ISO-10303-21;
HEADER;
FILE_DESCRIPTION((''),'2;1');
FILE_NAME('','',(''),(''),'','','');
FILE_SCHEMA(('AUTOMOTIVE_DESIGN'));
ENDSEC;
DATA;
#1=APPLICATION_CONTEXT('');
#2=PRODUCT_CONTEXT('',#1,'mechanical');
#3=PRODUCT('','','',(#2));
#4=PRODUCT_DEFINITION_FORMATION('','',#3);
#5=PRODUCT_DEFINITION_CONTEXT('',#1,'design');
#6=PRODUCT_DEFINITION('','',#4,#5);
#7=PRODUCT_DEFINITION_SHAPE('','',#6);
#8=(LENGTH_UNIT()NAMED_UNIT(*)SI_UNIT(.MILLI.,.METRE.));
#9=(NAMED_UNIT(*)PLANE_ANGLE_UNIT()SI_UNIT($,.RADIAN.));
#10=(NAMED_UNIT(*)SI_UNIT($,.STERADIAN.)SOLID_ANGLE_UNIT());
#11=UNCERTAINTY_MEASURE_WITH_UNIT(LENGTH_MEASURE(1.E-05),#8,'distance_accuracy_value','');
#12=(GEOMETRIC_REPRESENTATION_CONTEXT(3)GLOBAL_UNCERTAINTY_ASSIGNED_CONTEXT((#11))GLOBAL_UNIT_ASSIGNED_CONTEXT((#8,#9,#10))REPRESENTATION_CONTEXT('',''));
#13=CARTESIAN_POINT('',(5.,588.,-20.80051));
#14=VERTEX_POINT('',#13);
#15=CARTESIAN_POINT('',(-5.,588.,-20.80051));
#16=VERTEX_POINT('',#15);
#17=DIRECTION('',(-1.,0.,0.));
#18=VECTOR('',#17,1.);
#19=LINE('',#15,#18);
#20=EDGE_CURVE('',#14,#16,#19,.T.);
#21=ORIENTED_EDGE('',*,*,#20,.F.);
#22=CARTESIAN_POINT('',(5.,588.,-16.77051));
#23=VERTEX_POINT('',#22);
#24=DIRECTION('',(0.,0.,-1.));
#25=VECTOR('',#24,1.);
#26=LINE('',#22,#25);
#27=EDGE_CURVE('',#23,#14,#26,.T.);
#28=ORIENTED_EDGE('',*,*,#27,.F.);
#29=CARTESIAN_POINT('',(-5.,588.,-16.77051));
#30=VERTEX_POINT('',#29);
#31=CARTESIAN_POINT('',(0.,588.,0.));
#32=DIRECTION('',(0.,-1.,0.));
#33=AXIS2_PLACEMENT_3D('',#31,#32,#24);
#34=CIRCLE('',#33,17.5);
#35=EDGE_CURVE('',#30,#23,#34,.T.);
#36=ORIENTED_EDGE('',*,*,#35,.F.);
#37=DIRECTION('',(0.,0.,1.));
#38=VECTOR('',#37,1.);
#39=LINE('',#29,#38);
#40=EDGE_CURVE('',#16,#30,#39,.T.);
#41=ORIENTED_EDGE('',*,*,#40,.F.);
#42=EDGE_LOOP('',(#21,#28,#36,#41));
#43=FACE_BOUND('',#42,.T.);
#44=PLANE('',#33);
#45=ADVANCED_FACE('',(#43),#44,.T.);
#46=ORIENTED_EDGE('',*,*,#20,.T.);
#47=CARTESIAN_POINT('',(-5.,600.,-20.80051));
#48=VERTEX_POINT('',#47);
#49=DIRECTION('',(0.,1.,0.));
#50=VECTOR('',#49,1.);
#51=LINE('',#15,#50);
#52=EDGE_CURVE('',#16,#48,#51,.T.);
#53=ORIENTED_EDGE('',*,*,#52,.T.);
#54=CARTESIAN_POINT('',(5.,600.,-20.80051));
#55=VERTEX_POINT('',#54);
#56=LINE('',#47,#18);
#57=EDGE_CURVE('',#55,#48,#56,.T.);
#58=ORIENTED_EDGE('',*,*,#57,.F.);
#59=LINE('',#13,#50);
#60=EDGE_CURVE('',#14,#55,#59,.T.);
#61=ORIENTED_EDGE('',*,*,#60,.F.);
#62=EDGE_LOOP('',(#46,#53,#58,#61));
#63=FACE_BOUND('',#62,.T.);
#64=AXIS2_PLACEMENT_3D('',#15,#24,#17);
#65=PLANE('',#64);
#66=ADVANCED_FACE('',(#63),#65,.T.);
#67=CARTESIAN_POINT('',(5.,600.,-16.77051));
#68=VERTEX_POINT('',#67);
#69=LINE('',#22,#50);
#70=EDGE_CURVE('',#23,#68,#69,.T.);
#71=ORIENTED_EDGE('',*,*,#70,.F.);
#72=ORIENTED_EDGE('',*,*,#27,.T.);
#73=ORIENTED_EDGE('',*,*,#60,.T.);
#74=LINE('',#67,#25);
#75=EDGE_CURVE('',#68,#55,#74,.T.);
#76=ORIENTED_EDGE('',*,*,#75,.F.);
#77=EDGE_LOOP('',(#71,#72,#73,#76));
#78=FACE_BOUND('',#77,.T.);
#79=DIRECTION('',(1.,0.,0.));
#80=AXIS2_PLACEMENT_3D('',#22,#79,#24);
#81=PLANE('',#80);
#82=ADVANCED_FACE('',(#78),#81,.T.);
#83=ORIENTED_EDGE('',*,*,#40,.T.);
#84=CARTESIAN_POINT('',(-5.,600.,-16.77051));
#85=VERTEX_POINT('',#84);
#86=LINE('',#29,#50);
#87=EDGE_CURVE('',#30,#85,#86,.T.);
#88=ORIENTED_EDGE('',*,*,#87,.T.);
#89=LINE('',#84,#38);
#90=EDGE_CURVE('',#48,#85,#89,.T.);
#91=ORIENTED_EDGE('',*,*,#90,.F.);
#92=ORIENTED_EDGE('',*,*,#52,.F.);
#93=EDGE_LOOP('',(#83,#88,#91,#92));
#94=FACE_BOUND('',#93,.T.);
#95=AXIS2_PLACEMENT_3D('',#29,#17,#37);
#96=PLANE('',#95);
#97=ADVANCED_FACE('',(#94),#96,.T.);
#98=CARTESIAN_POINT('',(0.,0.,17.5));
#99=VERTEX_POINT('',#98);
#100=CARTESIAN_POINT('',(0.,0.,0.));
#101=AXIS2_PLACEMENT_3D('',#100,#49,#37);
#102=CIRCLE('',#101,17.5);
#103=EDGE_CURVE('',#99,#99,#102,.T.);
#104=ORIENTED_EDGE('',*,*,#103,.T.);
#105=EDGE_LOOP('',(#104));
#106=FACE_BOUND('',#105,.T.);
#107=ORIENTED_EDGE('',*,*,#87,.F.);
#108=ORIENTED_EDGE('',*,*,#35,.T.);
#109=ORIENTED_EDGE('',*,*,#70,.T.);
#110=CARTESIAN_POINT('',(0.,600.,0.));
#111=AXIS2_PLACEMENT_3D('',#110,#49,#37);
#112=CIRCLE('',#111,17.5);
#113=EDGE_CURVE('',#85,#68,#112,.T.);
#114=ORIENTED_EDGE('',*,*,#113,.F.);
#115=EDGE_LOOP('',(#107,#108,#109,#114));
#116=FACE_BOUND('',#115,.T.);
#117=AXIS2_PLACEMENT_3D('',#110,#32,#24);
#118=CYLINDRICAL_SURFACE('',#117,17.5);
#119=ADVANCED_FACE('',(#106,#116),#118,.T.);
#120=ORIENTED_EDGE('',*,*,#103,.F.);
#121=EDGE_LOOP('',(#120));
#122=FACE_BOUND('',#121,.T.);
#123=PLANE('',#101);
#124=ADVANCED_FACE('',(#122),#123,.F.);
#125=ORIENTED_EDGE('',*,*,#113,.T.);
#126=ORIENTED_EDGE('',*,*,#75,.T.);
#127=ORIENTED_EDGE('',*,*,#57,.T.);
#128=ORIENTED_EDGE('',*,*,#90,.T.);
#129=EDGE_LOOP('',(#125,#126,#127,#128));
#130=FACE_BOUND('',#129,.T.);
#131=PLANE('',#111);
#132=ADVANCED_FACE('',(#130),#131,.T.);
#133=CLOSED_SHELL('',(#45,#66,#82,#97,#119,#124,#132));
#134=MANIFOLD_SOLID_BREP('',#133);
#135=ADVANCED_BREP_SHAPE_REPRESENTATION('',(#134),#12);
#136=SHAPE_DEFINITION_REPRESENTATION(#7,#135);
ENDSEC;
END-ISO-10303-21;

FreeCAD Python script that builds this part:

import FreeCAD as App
import Part
import Sketcher
from FreeCAD import Vector
Q = App.Units.Quantity


def add_polygon(sketch, points):
    """Adds a closed chain of lines whose ends are joined by coincident constraints."""
    first, n = sketch.GeometryCount, len(points)
    for a, b in zip(points, points[1:] + points[:1]):
        sketch.addGeometry(Part.LineSegment(App.Vector(*a, 0), App.Vector(*b, 0)), False)
    for i in range(n):
        sketch.addConstraint(Sketcher.Constraint("Coincident", first + i, 2, first + (i + 1) % n, 1))

doc = App.newDocument("Part")
body = doc.addObject("PartDesign::Body", "Body")

# Sketch on XZ plane
sketch1 = body.newObject("Sketcher::SketchObject", "Sketch")
sketch1.AttachmentSupport = (doc.getObject("XZ_Plane"), [""])
sketch1.MapMode = "FlatFace"
sketch1.addGeometry(Part.Circle(Vector(0, 0, 0), Vector(0, 0, 1), 18), False)
sketch1.addConstraint([
    Sketcher.Constraint("Coincident", 0, 3, -1, 1),
    Sketcher.Constraint("Diameter", 0, Q("35 mm")),
])
pad1 = body.newObject("PartDesign::Pad", "Pad")
pad1.Profile = sketch1
pad1.Length = 600
pad1.Reversed = True

# Sketch on XZ plane
sketch2 = body.newObject("Sketcher::SketchObject", "Sketch001")
sketch2.AttachmentSupport = (doc.getObject("XZ_Plane"), [""])
sketch2.MapMode = "FlatFace"
sketch2.AttachmentOffset = App.Placement(Vector(0, 0, -600), App.Rotation())
add_polygon(sketch2, [(-5, -20.8), (-5, -16.8), (5, -16.8), (5, -20.8)])  # lines 0-3
sketch2.addConstraint([
    Sketcher.Constraint("Vertical", 0),
    Sketcher.Constraint("Horizontal", 1),
    Sketcher.Constraint("Vertical", 2),
    Sketcher.Constraint("Horizontal", 3),
    Sketcher.Constraint("DistanceX", 1, 1, 1, 2, Q("10 mm")),
    Sketcher.Constraint("DistanceX", 0, 2, -1, 1, Q("5 mm")),
    Sketcher.Constraint("DistanceY", 0, 1, 0, 2, Q("4.03 mm")),
    Sketcher.Constraint("DistanceY", 0, 2, -1, 1, Q("16.77051 mm")),
])
pad2 = body.newObject("PartDesign::Pad", "Pad001")
pad2.Profile = sketch2
pad2.Length = 12

doc.recompute()
